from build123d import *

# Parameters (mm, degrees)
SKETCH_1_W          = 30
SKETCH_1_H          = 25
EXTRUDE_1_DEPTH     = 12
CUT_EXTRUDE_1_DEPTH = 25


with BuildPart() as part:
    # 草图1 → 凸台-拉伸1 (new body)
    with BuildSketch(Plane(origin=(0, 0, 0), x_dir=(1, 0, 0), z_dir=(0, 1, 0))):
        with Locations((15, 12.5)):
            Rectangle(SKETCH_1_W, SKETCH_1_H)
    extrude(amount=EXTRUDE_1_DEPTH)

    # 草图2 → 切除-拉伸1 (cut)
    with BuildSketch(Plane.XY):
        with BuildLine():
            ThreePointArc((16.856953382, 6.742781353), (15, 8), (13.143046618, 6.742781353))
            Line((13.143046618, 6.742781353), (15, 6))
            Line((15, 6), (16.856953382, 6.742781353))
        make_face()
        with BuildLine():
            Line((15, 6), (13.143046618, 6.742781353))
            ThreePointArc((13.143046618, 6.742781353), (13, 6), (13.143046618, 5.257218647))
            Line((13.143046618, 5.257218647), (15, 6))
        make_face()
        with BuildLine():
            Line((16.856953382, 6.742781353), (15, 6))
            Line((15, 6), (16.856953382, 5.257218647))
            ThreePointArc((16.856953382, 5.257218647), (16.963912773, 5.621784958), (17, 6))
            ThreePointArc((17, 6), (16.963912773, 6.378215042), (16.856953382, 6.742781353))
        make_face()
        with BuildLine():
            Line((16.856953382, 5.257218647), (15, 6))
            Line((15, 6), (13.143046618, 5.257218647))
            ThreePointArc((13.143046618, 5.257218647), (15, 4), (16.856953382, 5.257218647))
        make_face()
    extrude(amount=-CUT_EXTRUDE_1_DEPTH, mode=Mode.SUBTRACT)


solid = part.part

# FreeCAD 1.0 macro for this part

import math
import FreeCAD as App
import Part
import Sketcher
Q = App.Units.Quantity


def add_polygon(sketch, points):
    """Adds a closed chain of lines whose ends are joined by coincident constraints."""
    first, n = sketch.GeometryCount, len(points)
    for a, b in zip(points, points[1:] + points[:1]):
        sketch.addGeometry(Part.LineSegment(App.Vector(*a, 0), App.Vector(*b, 0)), False)
    for i in range(n):
        sketch.addConstraint(Sketcher.Constraint("Coincident", first + i, 2, first + (i + 1) % n, 1))

doc = App.newDocument("Part")
body = doc.addObject("PartDesign::Body", "Body")

sketch1 = doc.addObject("Sketcher::SketchObject", "Sketch")
body.addObject(sketch1)
sketch1.AttachmentSupport = (doc.XZ_Plane, [""])
sketch1.MapMode = "FlatFace"
add_polygon(sketch1, [(0, -25), (0, 0), (30, 0), (30, -25)])
sketch1.addConstraint([
    Sketcher.Constraint("Vertical", 0),
    Sketcher.Constraint("Horizontal", 1),
    Sketcher.Constraint("Vertical", 2),
    Sketcher.Constraint("Horizontal", 3),
    Sketcher.Constraint("Coincident", 0, 2, -1, 1),
    Sketcher.Constraint("DistanceX", 1, 1, 1, 2, Q("30 mm")),
    Sketcher.Constraint("DistanceY", 0, 1, 0, 2, Q("25 mm")),
])
pad1 = doc.addObject("PartDesign::Pad", "Pad")
body.addObject(pad1)
pad1.Profile = sketch1
pad1.Length = 12
pad1.Reversed = True

sketch2 = doc.addObject("Sketcher::SketchObject", "Sketch001")
body.addObject(sketch2)
sketch2.AttachmentSupport = (doc.XY_Plane, [""])
sketch2.MapMode = "FlatFace"
sketch2.addGeometry([
    Part.ArcOfCircle(Part.Circle(App.Vector(15, 6, 0), App.Vector(0, 0, 1), 2), math.radians(-158.19859), math.radians(-21.80141)),
    Part.ArcOfCircle(Part.Circle(App.Vector(15, 6, 0), App.Vector(0, 0, 1), 2), math.radians(-21.801409), math.radians(0)),
    Part.ArcOfCircle(Part.Circle(App.Vector(15, 6, 0), App.Vector(0, 0, 1), 2), math.radians(0), math.radians(21.801409)),
    Part.ArcOfCircle(Part.Circle(App.Vector(15, 6, 0), App.Vector(0, 0, 1), 2), math.radians(21.80141), math.radians(158.19859)),
    Part.ArcOfCircle(Part.Circle(App.Vector(15, 6, 0), App.Vector(0, 0, 1), 2), math.radians(158.198591), math.radians(201.801409)),
], False)
sketch2.addConstraint([
    Sketcher.Constraint("Tangent", 0, 2, 1, 1),
    Sketcher.Constraint("Tangent", 1, 2, 2, 1),
    Sketcher.Constraint("Tangent", 2, 2, 3, 1),
    Sketcher.Constraint("Tangent", 3, 2, 4, 1),
    Sketcher.Constraint("Tangent", 4, 2, 0, 1),
    Sketcher.Constraint("Coincident", 2, 3, 0, 3),
    Sketcher.Constraint("Horizontal", 4, 3, 1, 2),
    Sketcher.Constraint("Horizontal", 2, 2, 3, 2),
    Sketcher.Constraint("Horizontal", 0, 2, 4, 2),
    Sketcher.Constraint("Vertical", 0, 2, 2, 2),
    Sketcher.Constraint("Radius", 0, Q("2 mm")),
    Sketcher.Constraint("DistanceX", -1, 1, 0, 3, Q("15 mm")),
    Sketcher.Constraint("DistanceY", -1, 1, 0, 3, Q("6 mm")),
    Sketcher.Constraint("DistanceY", -1, 1, 0, 2, Q("5.257219 mm")),
])
pocket1 = doc.addObject("PartDesign::Pocket", "Pocket")
body.addObject(pocket1)
pocket1.Profile = sketch2
pocket1.Length = 25

doc.recompute()
